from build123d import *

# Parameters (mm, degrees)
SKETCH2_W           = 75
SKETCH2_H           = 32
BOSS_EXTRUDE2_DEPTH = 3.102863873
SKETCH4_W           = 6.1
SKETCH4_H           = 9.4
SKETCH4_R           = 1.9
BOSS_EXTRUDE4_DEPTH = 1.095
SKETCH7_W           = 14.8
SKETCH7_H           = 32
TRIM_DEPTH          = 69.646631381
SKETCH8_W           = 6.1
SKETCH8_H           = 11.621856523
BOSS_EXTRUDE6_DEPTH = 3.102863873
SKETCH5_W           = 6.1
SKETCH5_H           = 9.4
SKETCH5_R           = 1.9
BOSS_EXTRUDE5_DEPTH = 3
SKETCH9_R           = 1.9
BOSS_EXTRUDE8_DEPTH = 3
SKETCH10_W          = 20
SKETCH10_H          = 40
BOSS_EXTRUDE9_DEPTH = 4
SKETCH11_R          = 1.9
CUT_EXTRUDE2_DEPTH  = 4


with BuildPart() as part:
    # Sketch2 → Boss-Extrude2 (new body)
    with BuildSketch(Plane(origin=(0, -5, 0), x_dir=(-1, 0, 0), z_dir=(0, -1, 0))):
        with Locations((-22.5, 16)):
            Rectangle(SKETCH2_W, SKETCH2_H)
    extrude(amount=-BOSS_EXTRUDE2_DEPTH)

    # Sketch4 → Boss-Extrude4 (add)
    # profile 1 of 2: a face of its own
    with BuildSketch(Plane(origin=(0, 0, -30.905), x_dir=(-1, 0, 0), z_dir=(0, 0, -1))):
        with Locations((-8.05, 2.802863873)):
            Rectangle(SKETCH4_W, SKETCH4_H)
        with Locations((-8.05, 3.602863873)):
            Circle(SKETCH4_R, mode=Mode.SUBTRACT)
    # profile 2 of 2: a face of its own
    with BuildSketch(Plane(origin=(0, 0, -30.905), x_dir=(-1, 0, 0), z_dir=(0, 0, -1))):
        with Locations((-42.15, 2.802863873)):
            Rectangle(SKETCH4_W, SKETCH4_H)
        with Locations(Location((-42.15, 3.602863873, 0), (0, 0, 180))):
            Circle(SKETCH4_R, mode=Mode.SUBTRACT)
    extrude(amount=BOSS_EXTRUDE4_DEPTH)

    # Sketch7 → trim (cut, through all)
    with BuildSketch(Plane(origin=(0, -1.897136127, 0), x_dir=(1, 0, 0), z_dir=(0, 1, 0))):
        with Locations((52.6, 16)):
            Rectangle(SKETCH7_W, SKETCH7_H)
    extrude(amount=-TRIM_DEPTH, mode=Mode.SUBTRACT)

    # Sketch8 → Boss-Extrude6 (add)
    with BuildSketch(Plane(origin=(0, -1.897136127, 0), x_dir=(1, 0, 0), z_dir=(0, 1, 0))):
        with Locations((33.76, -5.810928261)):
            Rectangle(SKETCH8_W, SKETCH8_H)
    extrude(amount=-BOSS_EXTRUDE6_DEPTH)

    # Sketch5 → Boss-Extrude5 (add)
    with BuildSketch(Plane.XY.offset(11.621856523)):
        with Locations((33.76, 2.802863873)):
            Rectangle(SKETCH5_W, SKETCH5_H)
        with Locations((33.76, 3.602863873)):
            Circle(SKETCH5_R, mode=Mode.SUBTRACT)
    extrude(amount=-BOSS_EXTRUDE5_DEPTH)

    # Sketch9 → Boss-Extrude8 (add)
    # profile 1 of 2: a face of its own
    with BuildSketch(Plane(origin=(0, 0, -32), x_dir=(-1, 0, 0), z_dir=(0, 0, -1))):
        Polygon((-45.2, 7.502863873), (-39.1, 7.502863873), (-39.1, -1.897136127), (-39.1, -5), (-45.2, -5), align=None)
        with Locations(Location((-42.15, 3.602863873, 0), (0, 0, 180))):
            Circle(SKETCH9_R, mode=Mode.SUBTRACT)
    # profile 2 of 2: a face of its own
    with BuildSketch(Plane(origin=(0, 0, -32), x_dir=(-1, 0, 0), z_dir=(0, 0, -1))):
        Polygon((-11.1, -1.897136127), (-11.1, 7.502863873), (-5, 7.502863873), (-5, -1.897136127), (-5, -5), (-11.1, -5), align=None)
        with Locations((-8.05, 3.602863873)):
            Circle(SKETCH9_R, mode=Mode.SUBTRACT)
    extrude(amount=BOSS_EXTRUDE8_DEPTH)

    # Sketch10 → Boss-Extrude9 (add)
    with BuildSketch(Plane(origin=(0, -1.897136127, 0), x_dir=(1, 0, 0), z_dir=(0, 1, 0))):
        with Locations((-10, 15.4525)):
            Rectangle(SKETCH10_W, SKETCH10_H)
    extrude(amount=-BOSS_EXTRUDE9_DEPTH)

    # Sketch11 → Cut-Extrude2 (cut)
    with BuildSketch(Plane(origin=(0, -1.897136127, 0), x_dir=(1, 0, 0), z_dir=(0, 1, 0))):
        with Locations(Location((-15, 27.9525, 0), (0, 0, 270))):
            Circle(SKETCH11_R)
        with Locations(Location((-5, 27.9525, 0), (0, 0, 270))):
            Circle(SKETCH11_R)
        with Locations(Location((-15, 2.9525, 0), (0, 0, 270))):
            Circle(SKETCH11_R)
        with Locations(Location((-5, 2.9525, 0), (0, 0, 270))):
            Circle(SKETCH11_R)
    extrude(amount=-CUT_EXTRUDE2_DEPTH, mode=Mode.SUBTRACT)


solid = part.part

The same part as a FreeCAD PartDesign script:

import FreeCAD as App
import Part
import Sketcher
Q = App.Units.Quantity


def add_polygon(sketch, points):
    """Adds a closed chain of lines whose ends are joined by coincident constraints."""
    first, n = sketch.GeometryCount, len(points)
    for a, b in zip(points, points[1:] + points[:1]):
        sketch.addGeometry(Part.LineSegment(App.Vector(*a, 0), App.Vector(*b, 0)), False)
    for i in range(n):
        sketch.addConstraint(Sketcher.Constraint("Coincident", first + i, 2, first + (i + 1) % n, 1))

doc = App.newDocument("Part")
params = doc.addObject("Spreadsheet::Sheet", "Params")
for row, (alias, value) in enumerate([
    ("sketch1_width", "75 mm"),
    ("sketch1_height", "32 mm"),
    ("pad1_length", "3.102864 mm"),
    ("sketch2_diameter", "3.8 mm"),
    ("sketch2_width", "6.1 mm"),
    ("sketch2_height", "9.4 mm"),
    ("pad2_length", "1.095 mm"),
    ("sketch3_height", "32 mm"),
    ("sketch3_width", "14.8 mm"),
    ("sketch4_width", "6.1 mm"),
    ("pad3_length", "3.102864 mm"),
    ("sketch5_diameter", "3.8 mm"),
    ("sketch5_width", "6.1 mm"),
    ("sketch5_height", "9.4 mm"),
    ("pad4_length", "3 mm"),
    ("sketch6_diameter", "3.8 mm"),
    ("sketch6_width", "6.1 mm"),
    ("pad5_length", "3 mm"),
    ("sketch7_width", "20 mm"),
    ("sketch7_height", "40 mm"),
    ("pad6_length", "4 mm"),
    ("sketch8_diameter", "3.8 mm"),
    ("pocket2_length", "4 mm"),
], start=1):
    params.set(f"A{row}", alias)
    params.set(f"B{row}", "=" + value)
    params.setAlias(f"B{row}", alias)

body = doc.addObject("PartDesign::Body", "Body")

# Sketch on XZ plane
sketch1 = body.newObject("Sketcher::SketchObject", "Sketch")
sketch1.AttachmentSupport = (doc.getObject("XZ_Plane"), [""])
sketch1.MapMode = "FlatFace"
sketch1.AttachmentOffset = App.Placement(App.Vector(0, 0, 5), App.Rotation())
add_polygon(sketch1, [(60, -32), (60, 0), (-15, 0), (-15, -32)])  # lines 0-3
sketch1.addConstraint([
    Sketcher.Constraint("Vertical", 0),
    Sketcher.Constraint("Horizontal", 1),
    Sketcher.Constraint("Vertical", 2),
    Sketcher.Constraint("Horizontal", 3),
    Sketcher.Constraint("PointOnObject", 0, 2, -1),
    Sketcher.Constraint("DistanceX", 1, 2, 1, 1, Q("75 mm")),
    Sketcher.Constraint("DistanceY", 0, 1, 0, 2, Q("32 mm")),
    Sketcher.Constraint("DistanceX", -1, 1, 0, 2, Q("60 mm")),
])
sketch1.setExpression("Constraints[9]", "Params.sketch1_width")
sketch1.setExpression("Constraints[10]", "Params.sketch1_height")
pad1 = body.newObject("PartDesign::Pad", "Pad")
pad1.Profile = sketch1
pad1.setExpression("Length", "Params.pad1_length")
pad1.Reversed = True

# Sketch on XY plane
sketch2 = body.newObject("Sketcher::SketchObject", "Sketch001")
sketch2.AttachmentSupport = (doc.getObject("XY_Plane"), [""])
sketch2.MapMode = "FlatFace"
sketch2.AttachmentOffset = App.Placement(App.Vector(0, 0, -30.905), App.Rotation())
add_polygon(sketch2, [(11.1, 7.5), (11.1, -1.9), (5, -1.9), (5, 7.5)])  # lines 0-3
sketch2.addGeometry(Part.Circle(App.Vector(8.1, 3.6, 0), App.Vector(0, 0, 1), 1.9), False)  # 4
add_polygon(sketch2, [(45.2, 7.5), (45.2, -1.9), (39.1, -1.9), (39.1, 7.5)])  # lines 5-8
sketch2.addGeometry(Part.Circle(App.Vector(42.1, 3.6, 0), App.Vector(0, 0, 1), 1.9), False)  # 9
sketch2.addConstraint([
    Sketcher.Constraint("Vertical", 0),
    Sketcher.Constraint("Horizontal", 1),
    Sketcher.Constraint("Vertical", 2),
    Sketcher.Constraint("Horizontal", 3),
    Sketcher.Constraint("Vertical", 5),
    Sketcher.Constraint("Horizontal", 6),
    Sketcher.Constraint("Vertical", 7),
    Sketcher.Constraint("Horizontal", 8),
    Sketcher.Constraint("Equal", 4, 9),
    Sketcher.Constraint("Horizontal", 4, 3, 9, 3),
    Sketcher.Constraint("Horizontal", 1, 2, 5, 2),
    Sketcher.Constraint("Horizontal", 3, 2, 7, 2),
    Sketcher.Constraint("Equal", 3, 6),
    Sketcher.Constraint("Diameter", 4, Q("3.8 mm")),
    Sketcher.Constraint("DistanceX", 1, 2, 1, 1, Q("6.1 mm")),
    Sketcher.Constraint("DistanceY", 0, 2, 0, 1, Q("9.4 mm")),
    Sketcher.Constraint("DistanceX", -1, 1, 1, 2, Q("5 mm")),
    Sketcher.Constraint("DistanceX", 0, 2, 6, 2, Q("28 mm")),
    Sketcher.Constraint("DistanceX", 4, 3, 9, 3, Q("34.1 mm")),
    Sketcher.Constraint("DistanceY", 0, 2, 4, 3, Q("5.5 mm")),
    Sketcher.Constraint("DistanceX", -1, 1, 4, 3, Q("8.05 mm")),
    Sketcher.Constraint("DistanceY", -1, 1, 4, 3, Q("3.602864 mm")),
])
sketch2.setExpression("Constraints[21]", "Params.sketch2_diameter")
sketch2.setExpression("Constraints[22]", "Params.sketch2_width")
sketch2.setExpression("Constraints[23]", "Params.sketch2_height")
pad2 = body.newObject("PartDesign::Pad", "Pad001")
pad2.Profile = sketch2
pad2.setExpression("Length", "Params.pad2_length")
pad2.Reversed = True

# Sketch on XZ plane
sketch3 = body.newObject("Sketcher::SketchObject", "Sketch002")
sketch3.AttachmentSupport = (doc.getObject("XZ_Plane"), [""])
sketch3.MapMode = "FlatFace"
sketch3.AttachmentOffset = App.Placement(App.Vector(0, 0, 1.897136), App.Rotation())
add_polygon(sketch3, [(45, -32), (45, 0), (60, 0), (60, -32)])  # lines 0-3
sketch3.addConstraint([
    Sketcher.Constraint("Vertical", 0),
    Sketcher.Constraint("Horizontal", 1),
    Sketcher.Constraint("Vertical", 2),
    Sketcher.Constraint("Horizontal", 3),
    Sketcher.Constraint("PointOnObject", 0, 2, -1),
    Sketcher.Constraint("DistanceY", 0, 1, 0, 2, Q("32 mm")),
    Sketcher.Constraint("DistanceX", 1, 1, 1, 2, Q("14.8 mm")),
    Sketcher.Constraint("DistanceX", -1, 1, 1, 2, Q("60 mm")),
])
sketch3.setExpression("Constraints[9]", "Params.sketch3_height")
sketch3.setExpression("Constraints[10]", "Params.sketch3_width")
pocket1 = body.newObject("PartDesign::Pocket", "Pocket")
pocket1.Profile = sketch3
pocket1.Type = "ThroughAll"
pocket1.Reversed = True

# Sketch on XZ plane
sketch4 = body.newObject("Sketcher::SketchObject", "Sketch003")
sketch4.AttachmentSupport = (doc.getObject("XZ_Plane"), [""])
sketch4.MapMode = "FlatFace"
sketch4.AttachmentOffset = App.Placement(App.Vector(0, 0, 1.897136), App.Rotation())
add_polygon(sketch4, [(31, 0), (31, 12), (37, 12), (37, 0)])  # lines 0-3
sketch4.addConstraint([
    Sketcher.Constraint("Vertical", 0),
    Sketcher.Constraint("Horizontal", 1),
    Sketcher.Constraint("Vertical", 2),
    Sketcher.Constraint("Horizontal", 3),
    Sketcher.Constraint("PointOnObject", 2, 2, -1),
    Sketcher.Constraint("DistanceX", 1, 1, 1, 2, Q("6.1 mm")),
    Sketcher.Constraint("DistanceX", -1, 1, 0, 2, Q("30.71 mm")),
    Sketcher.Constraint("DistanceY", 0, 1, 0, 2, Q("11.621857 mm")),
])
sketch4.setExpression("Constraints[9]", "Params.sketch4_width")
pad3 = body.newObject("PartDesign::Pad", "Pad002")
pad3.Profile = sketch4
pad3.setExpression("Length", "Params.pad3_length")

# Sketch on XY plane
sketch5 = body.newObject("Sketcher::SketchObject", "Sketch004")
sketch5.AttachmentSupport = (doc.getObject("XY_Plane"), [""])
sketch5.MapMode = "FlatFace"
sketch5.AttachmentOffset = App.Placement(App.Vector(0, 0, 11.621857), App.Rotation())
add_polygon(sketch5, [(30.7, 7.5), (30.7, -1.9), (36.8, -1.9), (36.8, 7.5)])  # lines 0-3
sketch5.addGeometry(Part.Circle(App.Vector(33.8, 3.6, 0), App.Vector(0, 0, 1), 1.9), False)  # 4
sketch5.addConstraint([
    Sketcher.Constraint("Vertical", 0),
    Sketcher.Constraint("Horizontal", 1),
    Sketcher.Constraint("Vertical", 2),
    Sketcher.Constraint("Horizontal", 3),
    Sketcher.Constraint("Diameter", 4, Q("3.8 mm")),
    Sketcher.Constraint("DistanceX", 1, 1, 1, 2, Q("6.1 mm")),
    Sketcher.Constraint("DistanceY", 0, 2, 0, 1, Q("9.4 mm")),
    Sketcher.Constraint("DistanceY", 0, 2, 4, 3, Q("5.5 mm")),
    Sketcher.Constraint("DistanceX", -1, 1, 4, 3, Q("33.76 mm")),
    Sketcher.Constraint("DistanceX", -1, 1, 0, 2, Q("30.71 mm")),
    Sketcher.Constraint("DistanceY", -1, 1, 4, 3, Q("3.602864 mm")),
])
sketch5.setExpression("Constraints[8]", "Params.sketch5_diameter")
sketch5.setExpression("Constraints[9]", "Params.sketch5_width")
sketch5.setExpression("Constraints[10]", "Params.sketch5_height")
pad4 = body.newObject("PartDesign::Pad", "Pad003")
pad4.Profile = sketch5
pad4.setExpression("Length", "Params.pad4_length")
pad4.Reversed = True

# Sketch on XY plane
sketch6 = body.newObject("Sketcher::SketchObject", "Sketch005")
sketch6.AttachmentSupport = (doc.getObject("XY_Plane"), [""])
sketch6.MapMode = "FlatFace"
sketch6.AttachmentOffset = App.Placement(App.Vector(0, 0, -32), App.Rotation())
add_polygon(sketch6, [(39.1, 7.5), (45.2, 7.5), (45.2, -5), (39.1, -5)])  # lines 0-3
sketch6.addGeometry(Part.Circle(App.Vector(42.1, 3.6, 0), App.Vector(0, 0, 1), 1.9), False)  # 4
add_polygon(sketch6, [(11.1, 7.5), (11.1, -5), (5, -5), (5, 7.5)])  # lines 5-8
sketch6.addGeometry(Part.Circle(App.Vector(8.1, 3.6, 0), App.Vector(0, 0, 1), 1.9), False)  # 9
sketch6.addConstraint([
    Sketcher.Constraint("Horizontal", 0),
    Sketcher.Constraint("Vertical", 1),
    Sketcher.Constraint("Horizontal", 2),
    Sketcher.Constraint("Vertical", 3),
    Sketcher.Constraint("Vertical", 5),
    Sketcher.Constraint("Horizontal", 6),
    Sketcher.Constraint("Vertical", 7),
    Sketcher.Constraint("Horizontal", 8),
    Sketcher.Constraint("Equal", 4, 9),
    Sketcher.Constraint("Horizontal", 4, 3, 9, 3),
    Sketcher.Constraint("Horizontal", 2, 2, 5, 2),
    Sketcher.Constraint("Horizontal", 3, 2, 7, 2),
    Sketcher.Constraint("Equal", 2, 6),
    Sketcher.Constraint("Diameter", 4, Q("3.8 mm")),
    Sketcher.Constraint("DistanceX", 0, 1, 0, 2, Q("6.1 mm")),
    Sketcher.Constraint("DistanceY", 1, 2, -1, 1, Q("5 mm")),
    Sketcher.Constraint("DistanceX", -1, 1, 6, 2, Q("5 mm")),
    Sketcher.Constraint("DistanceX", 5, 2, 2, 2, Q("28 mm")),
    Sketcher.Constraint("DistanceX", 9, 3, 4, 3, Q("34.1 mm")),
    Sketcher.Constraint("DistanceY", 4, 3, 0, 2, Q("3.9 mm")),
    Sketcher.Constraint("DistanceX", -1, 1, 4, 3, Q("42.15 mm")),
    Sketcher.Constraint("DistanceY", 1, 2, 1, 1, Q("12.502864 mm")),
])
sketch6.setExpression("Constraints[21]", "Params.sketch6_diameter")
sketch6.setExpression("Constraints[22]", "Params.sketch6_width")
pad5 = body.newObject("PartDesign::Pad", "Pad004")
pad5.Profile = sketch6
pad5.setExpression("Length", "Params.pad5_length")
pad5.Reversed = True

# Sketch on XZ plane
sketch7 = body.newObject("Sketcher::SketchObject", "Sketch006")
sketch7.AttachmentSupport = (doc.getObject("XZ_Plane"), [""])
sketch7.MapMode = "FlatFace"
sketch7.AttachmentOffset = App.Placement(App.Vector(0, 0, 1.897136), App.Rotation())
add_polygon(sketch7, [(-20, -35), (-20, 5), (0, 5), (0, -35)])  # lines 0-3
sketch7.addConstraint([
    Sketcher.Constraint("Vertical", 0),
    Sketcher.Constraint("Horizontal", 1),
    Sketcher.Constraint("Vertical", 2),
    Sketcher.Constraint("Horizontal", 3),
    Sketcher.Constraint("PointOnObject", 1, 2, -2),
    Sketcher.Constraint("DistanceX", 1, 1, 1, 2, Q("20 mm")),
    Sketcher.Constraint("DistanceY", 0, 1, 0, 2, Q("40 mm")),
    Sketcher.Constraint("DistanceY", -1, 1, 0, 2, Q("4.5475 mm")),
])
sketch7.setExpression("Constraints[9]", "Params.sketch7_width")
sketch7.setExpression("Constraints[10]", "Params.sketch7_height")
pad6 = body.newObject("PartDesign::Pad", "Pad005")
pad6.Profile = sketch7
pad6.setExpression("Length", "Params.pad6_length")

# Sketch on XZ plane
sketch8 = body.newObject("Sketcher::SketchObject", "Sketch007")
sketch8.AttachmentSupport = (doc.getObject("XZ_Plane"), [""])
sketch8.MapMode = "FlatFace"
sketch8.AttachmentOffset = App.Placement(App.Vector(0, 0, 1.897136), App.Rotation())
sketch8.addGeometry([
    Part.Circle(App.Vector(-15, -28, 0), App.Vector(0, 0, 1), 1.9),
    Part.Circle(App.Vector(-5, -28, 0), App.Vector(0, 0, 1), 1.9),
    Part.Circle(App.Vector(-15, -3, 0), App.Vector(0, 0, 1), 1.9),
    Part.Circle(App.Vector(-5, -3, 0), App.Vector(0, 0, 1), 1.9),
], False)
sketch8.addConstraint([
    Sketcher.Constraint("Equal", 0, 1),
    Sketcher.Constraint("Equal", 1, 2),
    Sketcher.Constraint("Equal", 2, 3),
    Sketcher.Constraint("Horizontal", 0, 3, 1, 3),
    Sketcher.Constraint("Horizontal", 2, 3, 3, 3),
    Sketcher.Constraint("Vertical", 0, 3, 2, 3),
    Sketcher.Constraint("Vertical", 1, 3, 3, 3),
    Sketcher.Constraint("Diameter", 0, Q("3.8 mm")),
    Sketcher.Constraint("DistanceX", 0, 3, -1, 1, Q("15 mm")),
    Sketcher.Constraint("DistanceX", 1, 3, -1, 1, Q("5 mm")),
    Sketcher.Constraint("DistanceY", 0, 3, 2, 3, Q("25 mm")),
    Sketcher.Constraint("DistanceY", 0, 3, -1, 1, Q("27.9525 mm")),
])
sketch8.setExpression("Constraints[7]", "Params.sketch8_diameter")
pocket2 = body.newObject("PartDesign::Pocket", "Pocket001")
pocket2.Profile = sketch8
pocket2.setExpression("Length", "Params.pocket2_length")
pocket2.Reversed = True

doc.recompute()
